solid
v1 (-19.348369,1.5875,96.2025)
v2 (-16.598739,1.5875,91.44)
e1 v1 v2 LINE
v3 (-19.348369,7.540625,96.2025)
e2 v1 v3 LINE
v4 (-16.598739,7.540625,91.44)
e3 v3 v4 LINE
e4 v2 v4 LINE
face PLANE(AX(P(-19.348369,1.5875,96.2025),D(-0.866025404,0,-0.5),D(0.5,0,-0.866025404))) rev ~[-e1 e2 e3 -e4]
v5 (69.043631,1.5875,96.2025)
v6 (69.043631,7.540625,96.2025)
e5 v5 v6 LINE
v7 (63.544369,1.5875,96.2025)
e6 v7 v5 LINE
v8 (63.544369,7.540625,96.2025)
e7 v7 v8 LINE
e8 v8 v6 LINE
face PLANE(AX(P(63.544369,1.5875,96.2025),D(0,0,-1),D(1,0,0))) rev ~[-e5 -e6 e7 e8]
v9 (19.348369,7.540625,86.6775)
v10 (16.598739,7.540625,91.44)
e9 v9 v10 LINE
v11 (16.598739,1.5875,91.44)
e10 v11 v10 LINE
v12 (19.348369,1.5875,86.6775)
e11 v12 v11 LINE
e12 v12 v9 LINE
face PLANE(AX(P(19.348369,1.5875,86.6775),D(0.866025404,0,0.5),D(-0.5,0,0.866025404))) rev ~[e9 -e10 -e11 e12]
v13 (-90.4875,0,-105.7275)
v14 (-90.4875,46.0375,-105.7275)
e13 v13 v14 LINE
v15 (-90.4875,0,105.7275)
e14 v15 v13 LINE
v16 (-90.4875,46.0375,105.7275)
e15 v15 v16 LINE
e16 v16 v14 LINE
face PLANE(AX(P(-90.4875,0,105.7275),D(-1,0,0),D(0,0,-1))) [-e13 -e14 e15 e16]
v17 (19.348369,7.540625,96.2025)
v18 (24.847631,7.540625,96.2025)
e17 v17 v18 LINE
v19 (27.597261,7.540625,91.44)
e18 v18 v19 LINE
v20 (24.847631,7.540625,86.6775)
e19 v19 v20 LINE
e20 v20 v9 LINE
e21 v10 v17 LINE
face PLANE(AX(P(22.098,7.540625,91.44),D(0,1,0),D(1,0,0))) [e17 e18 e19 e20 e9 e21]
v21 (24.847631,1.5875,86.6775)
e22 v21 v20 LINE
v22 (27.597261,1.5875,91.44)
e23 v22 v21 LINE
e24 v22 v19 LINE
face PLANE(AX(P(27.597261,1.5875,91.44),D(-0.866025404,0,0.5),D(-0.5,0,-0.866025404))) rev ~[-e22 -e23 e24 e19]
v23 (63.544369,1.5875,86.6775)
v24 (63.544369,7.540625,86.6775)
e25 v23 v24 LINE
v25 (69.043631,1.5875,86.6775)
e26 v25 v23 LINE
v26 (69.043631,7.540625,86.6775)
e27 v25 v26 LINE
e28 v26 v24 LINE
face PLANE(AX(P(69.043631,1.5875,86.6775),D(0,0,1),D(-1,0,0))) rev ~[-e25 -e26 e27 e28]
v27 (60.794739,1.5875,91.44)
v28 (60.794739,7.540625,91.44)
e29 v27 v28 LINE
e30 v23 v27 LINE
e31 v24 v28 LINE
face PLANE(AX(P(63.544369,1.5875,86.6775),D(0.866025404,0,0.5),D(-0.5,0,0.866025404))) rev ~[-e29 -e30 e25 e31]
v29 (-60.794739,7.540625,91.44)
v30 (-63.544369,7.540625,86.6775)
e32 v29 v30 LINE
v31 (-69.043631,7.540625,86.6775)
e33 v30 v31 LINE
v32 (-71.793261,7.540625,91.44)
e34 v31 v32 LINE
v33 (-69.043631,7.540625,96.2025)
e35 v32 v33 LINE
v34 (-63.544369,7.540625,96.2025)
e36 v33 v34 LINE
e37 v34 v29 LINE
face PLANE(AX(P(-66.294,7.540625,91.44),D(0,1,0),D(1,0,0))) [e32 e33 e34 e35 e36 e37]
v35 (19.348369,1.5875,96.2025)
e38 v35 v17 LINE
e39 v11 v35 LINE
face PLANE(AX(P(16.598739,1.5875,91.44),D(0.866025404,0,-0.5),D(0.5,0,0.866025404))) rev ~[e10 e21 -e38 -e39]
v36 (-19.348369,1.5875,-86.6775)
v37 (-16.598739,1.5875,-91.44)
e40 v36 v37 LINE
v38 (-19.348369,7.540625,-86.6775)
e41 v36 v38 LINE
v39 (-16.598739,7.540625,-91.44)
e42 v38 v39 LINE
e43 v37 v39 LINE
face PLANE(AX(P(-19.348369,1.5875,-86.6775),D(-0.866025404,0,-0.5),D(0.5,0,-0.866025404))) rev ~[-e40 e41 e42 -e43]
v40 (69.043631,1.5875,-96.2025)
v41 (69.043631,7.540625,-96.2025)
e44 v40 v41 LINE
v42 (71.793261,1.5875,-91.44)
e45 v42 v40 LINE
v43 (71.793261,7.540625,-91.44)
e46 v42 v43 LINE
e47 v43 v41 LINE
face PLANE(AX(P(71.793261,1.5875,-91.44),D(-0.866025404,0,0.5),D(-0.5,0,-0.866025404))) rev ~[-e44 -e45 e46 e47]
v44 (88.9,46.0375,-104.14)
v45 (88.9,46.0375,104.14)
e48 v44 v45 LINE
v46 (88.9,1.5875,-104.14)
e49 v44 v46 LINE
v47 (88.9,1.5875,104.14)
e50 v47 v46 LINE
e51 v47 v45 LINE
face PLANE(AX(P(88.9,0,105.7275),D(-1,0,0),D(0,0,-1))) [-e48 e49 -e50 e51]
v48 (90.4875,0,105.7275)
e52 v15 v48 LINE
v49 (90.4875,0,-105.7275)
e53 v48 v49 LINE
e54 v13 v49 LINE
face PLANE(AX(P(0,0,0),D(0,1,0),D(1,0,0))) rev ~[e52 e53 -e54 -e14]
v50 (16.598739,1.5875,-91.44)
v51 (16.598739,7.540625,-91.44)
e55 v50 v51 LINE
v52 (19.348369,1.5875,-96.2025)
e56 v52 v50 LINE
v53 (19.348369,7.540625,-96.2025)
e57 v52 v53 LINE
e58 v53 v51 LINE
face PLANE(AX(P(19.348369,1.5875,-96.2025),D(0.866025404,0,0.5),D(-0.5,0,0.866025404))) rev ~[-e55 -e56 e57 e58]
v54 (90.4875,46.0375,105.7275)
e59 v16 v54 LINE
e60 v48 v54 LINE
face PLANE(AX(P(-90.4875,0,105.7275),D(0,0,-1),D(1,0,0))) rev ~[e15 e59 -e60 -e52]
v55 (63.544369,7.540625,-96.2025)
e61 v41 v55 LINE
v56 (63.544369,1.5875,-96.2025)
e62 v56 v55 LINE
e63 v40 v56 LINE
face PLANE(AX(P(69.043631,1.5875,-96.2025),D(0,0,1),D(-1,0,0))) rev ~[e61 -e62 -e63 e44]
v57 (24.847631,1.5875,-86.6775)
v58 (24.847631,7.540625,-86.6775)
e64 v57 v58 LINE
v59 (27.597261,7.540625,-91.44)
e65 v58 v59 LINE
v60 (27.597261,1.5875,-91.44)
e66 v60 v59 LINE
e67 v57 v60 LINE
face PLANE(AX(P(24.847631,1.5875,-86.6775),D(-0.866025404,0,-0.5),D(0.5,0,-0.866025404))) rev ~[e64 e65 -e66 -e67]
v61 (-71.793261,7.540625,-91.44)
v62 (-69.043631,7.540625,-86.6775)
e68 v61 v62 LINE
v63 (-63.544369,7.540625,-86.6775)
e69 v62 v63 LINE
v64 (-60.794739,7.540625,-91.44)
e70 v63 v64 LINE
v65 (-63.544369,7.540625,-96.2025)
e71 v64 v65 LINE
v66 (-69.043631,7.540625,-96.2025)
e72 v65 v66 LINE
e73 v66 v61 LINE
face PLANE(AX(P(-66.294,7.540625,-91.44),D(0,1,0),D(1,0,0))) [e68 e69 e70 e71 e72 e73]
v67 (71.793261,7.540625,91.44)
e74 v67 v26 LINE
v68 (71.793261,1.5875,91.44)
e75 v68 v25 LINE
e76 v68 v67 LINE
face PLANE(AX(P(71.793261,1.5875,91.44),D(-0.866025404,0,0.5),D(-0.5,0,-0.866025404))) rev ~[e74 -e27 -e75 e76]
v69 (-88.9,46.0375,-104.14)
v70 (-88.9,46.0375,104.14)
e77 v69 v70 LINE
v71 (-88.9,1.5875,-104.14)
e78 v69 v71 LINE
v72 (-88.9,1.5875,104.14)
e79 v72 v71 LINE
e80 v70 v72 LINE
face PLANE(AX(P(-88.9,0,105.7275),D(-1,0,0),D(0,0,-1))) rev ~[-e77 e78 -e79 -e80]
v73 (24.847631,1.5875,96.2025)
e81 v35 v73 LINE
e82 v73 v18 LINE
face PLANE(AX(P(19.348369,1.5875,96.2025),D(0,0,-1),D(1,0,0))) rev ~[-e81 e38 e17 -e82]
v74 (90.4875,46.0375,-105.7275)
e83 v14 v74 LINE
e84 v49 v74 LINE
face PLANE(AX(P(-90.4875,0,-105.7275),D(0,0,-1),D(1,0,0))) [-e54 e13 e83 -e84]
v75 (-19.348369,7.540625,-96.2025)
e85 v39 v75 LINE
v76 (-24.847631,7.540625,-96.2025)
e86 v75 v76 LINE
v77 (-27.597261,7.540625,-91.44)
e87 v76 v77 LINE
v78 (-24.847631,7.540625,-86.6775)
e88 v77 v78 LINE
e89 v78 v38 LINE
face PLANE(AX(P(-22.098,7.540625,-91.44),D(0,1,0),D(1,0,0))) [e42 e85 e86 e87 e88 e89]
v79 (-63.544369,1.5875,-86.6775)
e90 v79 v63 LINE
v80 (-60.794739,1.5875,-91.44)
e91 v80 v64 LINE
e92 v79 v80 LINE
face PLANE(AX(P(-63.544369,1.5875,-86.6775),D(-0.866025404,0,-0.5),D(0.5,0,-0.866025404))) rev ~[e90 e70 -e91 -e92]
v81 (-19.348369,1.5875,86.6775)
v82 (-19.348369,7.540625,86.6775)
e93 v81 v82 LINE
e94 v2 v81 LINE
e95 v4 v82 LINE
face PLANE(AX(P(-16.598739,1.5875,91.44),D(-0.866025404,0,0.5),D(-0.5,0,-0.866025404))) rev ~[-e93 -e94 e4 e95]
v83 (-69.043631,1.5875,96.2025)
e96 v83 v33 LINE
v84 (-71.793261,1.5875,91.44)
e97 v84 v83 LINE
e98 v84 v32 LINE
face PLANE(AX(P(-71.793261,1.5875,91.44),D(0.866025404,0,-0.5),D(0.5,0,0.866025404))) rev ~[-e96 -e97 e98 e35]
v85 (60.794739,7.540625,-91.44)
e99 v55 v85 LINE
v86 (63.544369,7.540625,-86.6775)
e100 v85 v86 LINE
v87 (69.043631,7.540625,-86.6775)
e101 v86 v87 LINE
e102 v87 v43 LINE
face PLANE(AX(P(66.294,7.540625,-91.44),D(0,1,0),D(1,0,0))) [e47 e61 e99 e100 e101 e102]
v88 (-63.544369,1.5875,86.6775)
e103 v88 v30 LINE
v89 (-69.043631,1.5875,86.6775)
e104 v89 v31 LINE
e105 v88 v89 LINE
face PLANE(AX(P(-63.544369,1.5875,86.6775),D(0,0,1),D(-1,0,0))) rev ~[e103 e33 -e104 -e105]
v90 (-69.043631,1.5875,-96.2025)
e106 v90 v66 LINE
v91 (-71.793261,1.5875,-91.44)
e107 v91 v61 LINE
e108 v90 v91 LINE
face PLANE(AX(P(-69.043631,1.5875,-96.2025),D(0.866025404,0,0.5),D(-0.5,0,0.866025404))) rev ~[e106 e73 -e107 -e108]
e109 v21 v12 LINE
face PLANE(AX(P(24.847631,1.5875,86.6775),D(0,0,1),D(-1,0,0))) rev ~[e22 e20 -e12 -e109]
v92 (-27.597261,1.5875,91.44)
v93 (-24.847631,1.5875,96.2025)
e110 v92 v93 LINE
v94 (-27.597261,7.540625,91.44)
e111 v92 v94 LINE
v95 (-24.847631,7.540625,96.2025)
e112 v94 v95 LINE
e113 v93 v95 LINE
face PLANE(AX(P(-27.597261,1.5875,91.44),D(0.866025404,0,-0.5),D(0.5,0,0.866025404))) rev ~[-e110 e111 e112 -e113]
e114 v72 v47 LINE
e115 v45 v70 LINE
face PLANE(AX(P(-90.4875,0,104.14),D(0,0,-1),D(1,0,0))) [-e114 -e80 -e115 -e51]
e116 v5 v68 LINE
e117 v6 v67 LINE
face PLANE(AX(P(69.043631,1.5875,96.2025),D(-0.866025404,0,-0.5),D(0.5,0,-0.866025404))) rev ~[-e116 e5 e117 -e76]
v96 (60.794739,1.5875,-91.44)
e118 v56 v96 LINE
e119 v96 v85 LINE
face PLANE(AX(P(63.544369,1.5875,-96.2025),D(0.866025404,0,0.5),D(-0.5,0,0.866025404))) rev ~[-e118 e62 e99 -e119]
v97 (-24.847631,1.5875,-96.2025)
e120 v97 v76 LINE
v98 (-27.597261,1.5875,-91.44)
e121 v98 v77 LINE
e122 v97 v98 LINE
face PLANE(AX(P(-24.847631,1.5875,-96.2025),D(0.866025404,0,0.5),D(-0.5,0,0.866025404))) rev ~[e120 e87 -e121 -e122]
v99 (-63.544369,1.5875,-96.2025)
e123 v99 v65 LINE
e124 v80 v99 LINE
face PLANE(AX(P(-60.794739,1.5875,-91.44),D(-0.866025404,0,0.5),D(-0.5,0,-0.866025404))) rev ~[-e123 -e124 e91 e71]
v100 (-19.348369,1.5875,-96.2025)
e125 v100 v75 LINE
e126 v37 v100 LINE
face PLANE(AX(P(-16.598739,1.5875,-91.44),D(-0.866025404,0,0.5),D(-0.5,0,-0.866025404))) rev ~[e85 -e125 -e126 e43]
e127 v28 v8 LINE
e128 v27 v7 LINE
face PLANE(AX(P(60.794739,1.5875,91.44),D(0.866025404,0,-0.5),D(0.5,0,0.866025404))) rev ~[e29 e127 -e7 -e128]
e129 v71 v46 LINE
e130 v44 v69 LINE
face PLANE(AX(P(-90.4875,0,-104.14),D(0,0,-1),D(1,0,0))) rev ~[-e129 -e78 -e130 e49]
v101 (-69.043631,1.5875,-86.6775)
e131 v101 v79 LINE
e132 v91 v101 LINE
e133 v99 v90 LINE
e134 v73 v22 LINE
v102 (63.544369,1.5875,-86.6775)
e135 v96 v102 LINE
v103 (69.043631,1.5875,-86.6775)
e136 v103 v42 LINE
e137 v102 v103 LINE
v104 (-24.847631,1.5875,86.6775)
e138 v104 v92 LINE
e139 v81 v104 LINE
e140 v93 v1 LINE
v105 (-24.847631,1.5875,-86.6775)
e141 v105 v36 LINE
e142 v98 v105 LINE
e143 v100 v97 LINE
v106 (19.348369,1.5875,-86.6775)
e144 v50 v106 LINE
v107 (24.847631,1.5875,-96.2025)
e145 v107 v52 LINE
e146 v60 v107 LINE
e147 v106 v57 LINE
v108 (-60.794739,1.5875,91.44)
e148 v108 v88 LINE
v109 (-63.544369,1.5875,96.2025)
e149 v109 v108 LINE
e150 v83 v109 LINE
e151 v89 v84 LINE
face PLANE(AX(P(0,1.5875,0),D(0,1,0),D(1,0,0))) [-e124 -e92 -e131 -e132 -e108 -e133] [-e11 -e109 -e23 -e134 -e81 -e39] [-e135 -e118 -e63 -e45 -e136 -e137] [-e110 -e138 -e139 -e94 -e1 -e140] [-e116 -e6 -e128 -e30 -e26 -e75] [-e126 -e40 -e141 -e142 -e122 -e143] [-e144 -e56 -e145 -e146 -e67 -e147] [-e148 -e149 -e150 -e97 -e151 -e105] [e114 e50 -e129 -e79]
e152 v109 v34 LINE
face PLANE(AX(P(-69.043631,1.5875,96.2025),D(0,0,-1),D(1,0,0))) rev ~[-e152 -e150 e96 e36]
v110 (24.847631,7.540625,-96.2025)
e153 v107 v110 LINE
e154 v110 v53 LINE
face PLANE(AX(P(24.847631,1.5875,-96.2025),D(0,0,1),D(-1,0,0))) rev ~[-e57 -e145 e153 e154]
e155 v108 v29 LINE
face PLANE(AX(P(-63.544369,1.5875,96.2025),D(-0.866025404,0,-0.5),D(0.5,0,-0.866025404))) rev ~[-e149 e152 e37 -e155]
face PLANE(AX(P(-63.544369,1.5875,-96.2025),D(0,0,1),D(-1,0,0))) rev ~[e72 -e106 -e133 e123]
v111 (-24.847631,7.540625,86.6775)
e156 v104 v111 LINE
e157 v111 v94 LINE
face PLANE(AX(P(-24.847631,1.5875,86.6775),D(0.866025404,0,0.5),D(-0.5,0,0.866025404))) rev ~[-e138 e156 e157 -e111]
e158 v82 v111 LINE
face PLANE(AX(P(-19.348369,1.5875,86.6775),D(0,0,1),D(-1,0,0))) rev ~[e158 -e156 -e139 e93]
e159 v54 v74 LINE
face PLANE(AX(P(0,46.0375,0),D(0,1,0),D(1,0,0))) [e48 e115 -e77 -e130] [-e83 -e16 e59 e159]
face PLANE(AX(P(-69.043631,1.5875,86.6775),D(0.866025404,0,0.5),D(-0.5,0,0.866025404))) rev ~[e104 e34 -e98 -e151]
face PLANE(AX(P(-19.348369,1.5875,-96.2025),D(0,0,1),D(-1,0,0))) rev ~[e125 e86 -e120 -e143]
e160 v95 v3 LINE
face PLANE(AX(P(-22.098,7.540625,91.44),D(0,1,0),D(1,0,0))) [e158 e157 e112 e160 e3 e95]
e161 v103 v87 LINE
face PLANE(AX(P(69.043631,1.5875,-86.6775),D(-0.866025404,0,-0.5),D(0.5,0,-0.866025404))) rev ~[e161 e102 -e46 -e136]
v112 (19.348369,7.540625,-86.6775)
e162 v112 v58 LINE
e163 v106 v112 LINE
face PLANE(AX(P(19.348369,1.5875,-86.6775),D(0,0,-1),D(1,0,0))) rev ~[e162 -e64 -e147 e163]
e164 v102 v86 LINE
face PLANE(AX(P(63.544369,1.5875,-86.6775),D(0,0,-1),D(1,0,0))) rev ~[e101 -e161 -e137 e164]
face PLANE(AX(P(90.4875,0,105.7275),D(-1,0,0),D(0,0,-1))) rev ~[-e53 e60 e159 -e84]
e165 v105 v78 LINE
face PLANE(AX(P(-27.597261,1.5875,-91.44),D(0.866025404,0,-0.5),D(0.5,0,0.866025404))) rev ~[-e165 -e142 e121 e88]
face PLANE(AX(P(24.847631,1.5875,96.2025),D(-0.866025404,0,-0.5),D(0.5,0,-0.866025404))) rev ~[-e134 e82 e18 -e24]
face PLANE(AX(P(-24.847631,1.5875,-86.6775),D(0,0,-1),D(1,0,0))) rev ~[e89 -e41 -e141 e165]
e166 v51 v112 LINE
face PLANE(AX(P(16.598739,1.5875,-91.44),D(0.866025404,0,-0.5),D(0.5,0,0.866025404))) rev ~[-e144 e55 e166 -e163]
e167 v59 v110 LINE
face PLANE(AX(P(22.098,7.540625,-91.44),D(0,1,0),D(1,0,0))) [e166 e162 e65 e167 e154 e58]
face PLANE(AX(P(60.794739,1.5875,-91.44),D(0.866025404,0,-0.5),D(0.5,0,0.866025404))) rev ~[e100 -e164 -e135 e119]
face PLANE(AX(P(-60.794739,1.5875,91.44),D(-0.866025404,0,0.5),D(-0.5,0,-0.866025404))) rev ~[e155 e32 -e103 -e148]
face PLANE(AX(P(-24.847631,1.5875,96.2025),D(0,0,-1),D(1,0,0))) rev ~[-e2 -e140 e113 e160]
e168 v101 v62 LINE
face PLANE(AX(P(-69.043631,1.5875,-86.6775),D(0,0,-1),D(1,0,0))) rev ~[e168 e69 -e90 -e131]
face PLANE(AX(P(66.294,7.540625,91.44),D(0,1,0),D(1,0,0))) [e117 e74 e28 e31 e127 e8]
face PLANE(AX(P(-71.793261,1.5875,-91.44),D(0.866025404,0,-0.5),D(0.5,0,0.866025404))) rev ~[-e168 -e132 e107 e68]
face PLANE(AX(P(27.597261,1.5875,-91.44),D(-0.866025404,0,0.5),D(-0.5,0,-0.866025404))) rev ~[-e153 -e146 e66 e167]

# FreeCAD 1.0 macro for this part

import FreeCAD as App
import Part
import Sketcher
from FreeCAD import Vector
Q = App.Units.Quantity


def faces_at(feature, points):
    """Names of the faces that lie closest to the given points."""
    faces = feature.Shape.Faces
    near = lambda p: min(range(len(faces)), key=lambda i: faces[i].distToShape(Part.Vertex(*p))[0])
    return sorted({f"Face{near(p) + 1}" for p in points})


def add_polygon(sketch, points):
    """Adds a closed chain of lines whose ends are joined by coincident constraints."""
    first, n = sketch.GeometryCount, len(points)
    for a, b in zip(points, points[1:] + points[:1]):
        sketch.addGeometry(Part.LineSegment(App.Vector(*a, 0), App.Vector(*b, 0)), False)
    for i in range(n):
        sketch.addConstraint(Sketcher.Constraint("Coincident", first + i, 2, first + (i + 1) % n, 1))

doc = App.newDocument("Part")
params = doc.addObject("Spreadsheet::Sheet", "Params")
for row, (alias, value) in enumerate([
    ("sketch1_width", "7.125 in"),
    ("sketch1_height", "8.325 in"),
    ("pad1_length", "1.8125 in"),
    ("thickness_wall", "0.0625 in"),
    ("pad2_length", "0.234375 in"),
], start=1):
    params.set(f"A{row}", alias)
    params.set(f"B{row}", "=" + value)
    params.setAlias(f"B{row}", alias)

body = doc.addObject("PartDesign::Body", "Body")

# Sketch on XZ plane
sketch1 = body.newObject("Sketcher::SketchObject", "Sketch")
sketch1.AttachmentSupport = (doc.getObject("XZ_Plane"), [""])
sketch1.MapMode = "FlatFace"
add_polygon(sketch1, [(-90, -106), (-90, 106), (90, 106), (90, -106)])  # lines 0-3
sketch1.addConstraint(Sketcher.Constraint("Vertical", 0))
sketch1.addConstraint(Sketcher.Constraint("Horizontal", 1))
sketch1.addConstraint(Sketcher.Constraint("Vertical", 2))
sketch1.addConstraint(Sketcher.Constraint("Horizontal", 3))
sketch1.addConstraint(Sketcher.Constraint("Symmetric", 0, 2, 2, 2, -1, 1))
sketch1.addConstraint(Sketcher.Constraint("DistanceX", 1, 1, 1, 2, Q("7.125 in")))
sketch1.addConstraint(Sketcher.Constraint("DistanceY", 0, 1, 0, 2, Q("8.325 in")))
sketch1.setExpression("Constraints[9]", "Params.sketch1_width")
sketch1.setExpression("Constraints[10]", "Params.sketch1_height")
pad1 = body.newObject("PartDesign::Pad", "Pad")
pad1.Profile = sketch1
pad1.setExpression("Length", "Params.pad1_length")
pad1.Reversed = True
doc.recompute()

thickness = body.newObject("PartDesign::Thickness", "Thickness")
thickness.Base = (pad1, faces_at(pad1, [(0, 46.038, 0)]))
thickness.setExpression("Value", "Params.thickness_wall")
thickness.Reversed = True
thickness.Join = "Intersection"

# Sketch on XZ plane
sketch2 = body.newObject("Sketcher::SketchObject", "Sketch001")
sketch2.AttachmentSupport = (doc.getObject("XZ_Plane"), [""])
sketch2.MapMode = "FlatFace"
sketch2.AttachmentOffset = App.Placement(Vector(0, 0, -0.0625 * 25.4), App.Rotation())
add_polygon(sketch2, [(-28, 91), (-25, 96), (-19, 96), (-17, 91), (-19, 87), (-25, 87)])  # lines 0-5
add_polygon(sketch2, [(-72, 91), (-69, 96), (-64, 96), (-61, 91), (-64, 87), (-69, 87)])  # lines 6-11
add_polygon(sketch2, [(17, 91), (19, 96), (25, 96), (28, 91), (25, 87), (19, 87)])  # lines 12-17
add_polygon(sketch2, [(61, 91), (64, 96), (69, 96), (72, 91), (69, 87), (64, 87)])  # lines 18-23
add_polygon(sketch2, [(-28, -91), (-25, -87), (-19, -87), (-17, -91), (-19, -96), (-25, -96)])  # lines 24-29
add_polygon(sketch2, [(17, -91), (19, -87), (25, -87), (28, -91), (25, -96), (19, -96)])  # lines 30-35
add_polygon(sketch2, [(61, -91), (64, -87), (69, -87), (72, -91), (69, -96), (64, -96)])  # lines 36-41
add_polygon(sketch2, [(-72, -91), (-69, -87), (-64, -87), (-61, -91), (-64, -96), (-69, -96)])  # lines 42-47
sketch2.addConstraint(Sketcher.Constraint("Horizontal", 1))
sketch2.addConstraint(Sketcher.Constraint("Horizontal", 4))
sketch2.addConstraint(Sketcher.Constraint("Horizontal", 7))
sketch2.addConstraint(Sketcher.Constraint("Horizontal", 10))
sketch2.addConstraint(Sketcher.Constraint("Horizontal", 13))
sketch2.addConstraint(Sketcher.Constraint("Horizontal", 16))
sketch2.addConstraint(Sketcher.Constraint("Horizontal", 19))
sketch2.addConstraint(Sketcher.Constraint("Horizontal", 22))
sketch2.addConstraint(Sketcher.Constraint("Horizontal", 25))
sketch2.addConstraint(Sketcher.Constraint("Horizontal", 28))
sketch2.addConstraint(Sketcher.Constraint("Horizontal", 31))
sketch2.addConstraint(Sketcher.Constraint("Horizontal", 34))
sketch2.addConstraint(Sketcher.Constraint("Horizontal", 37))
sketch2.addConstraint(Sketcher.Constraint("Horizontal", 40))
sketch2.addConstraint(Sketcher.Constraint("Horizontal", 43))
sketch2.addConstraint(Sketcher.Constraint("Horizontal", 46))
sketch2.addConstraint(Sketcher.Constraint("Symmetric", 15, 2, 24, 2, -1, 1))
sketch2.addConstraint(Sketcher.Constraint("Symmetric", 17, 2, 26, 2, -1, 1))
sketch2.addConstraint(Sketcher.Constraint("Symmetric", 12, 2, 27, 2, -1, 1))
sketch2.addConstraint(Sketcher.Constraint("Symmetric", 14, 2, 29, 2, -1, 1))
sketch2.addConstraint(Sketcher.Constraint("Symmetric", 3, 2, 30, 2, -1, 1))
sketch2.addConstraint(Sketcher.Constraint("Symmetric", 5, 2, 32, 2, -1, 1))
sketch2.addConstraint(Sketcher.Constraint("Symmetric", 0, 2, 33, 2, -1, 1))
sketch2.addConstraint(Sketcher.Constraint("Symmetric", 2, 2, 35, 2, -1, 1))
sketch2.addConstraint(Sketcher.Constraint("Symmetric", 9, 2, 36, 2, -1, 1))
sketch2.addConstraint(Sketcher.Constraint("Symmetric", 11, 2, 38, 2, -1, 1))
sketch2.addConstraint(Sketcher.Constraint("Symmetric", 6, 2, 39, 2, -1, 1))
sketch2.addConstraint(Sketcher.Constraint("Symmetric", 8, 2, 41, 2, -1, 1))
sketch2.addConstraint(Sketcher.Constraint("Symmetric", 21, 2, 42, 2, -1, 1))
sketch2.addConstraint(Sketcher.Constraint("Symmetric", 23, 2, 44, 2, -1, 1))
sketch2.addConstraint(Sketcher.Constraint("Symmetric", 18, 2, 45, 2, -1, 1))
sketch2.addConstraint(Sketcher.Constraint("Symmetric", 20, 2, 47, 2, -1, 1))
sketch2.addConstraint(Sketcher.Constraint("Symmetric", 1, 2, 12, 2, -2))
sketch2.addConstraint(Sketcher.Constraint("Symmetric", 5, 2, 14, 2, -2))
sketch2.addConstraint(Sketcher.Constraint("Symmetric", 4, 2, 15, 2, -2))
sketch2.addConstraint(Sketcher.Constraint("Symmetric", 2, 2, 17, 2, -2))
sketch2.addConstraint(Sketcher.Constraint("Symmetric", 7, 2, 18, 2, -2))
sketch2.addConstraint(Sketcher.Constraint("Symmetric", 11, 2, 20, 2, -2))
sketch2.addConstraint(Sketcher.Constraint("Symmetric", 10, 2, 21, 2, -2))
sketch2.addConstraint(Sketcher.Constraint("Symmetric", 8, 2, 23, 2, -2))
sketch2.addConstraint(Sketcher.Constraint("Parallel", 0, 3))
sketch2.addConstraint(Sketcher.Constraint("Parallel", 2, 5))
sketch2.addConstraint(Sketcher.Constraint("Parallel", 3, 6))
sketch2.addConstraint(Sketcher.Constraint("Parallel", 5, 8))
sketch2.addConstraint(Sketcher.Constraint("Parallel", 6, 9))
sketch2.addConstraint(Sketcher.Constraint("Parallel", 8, 11))
sketch2.addConstraint(Sketcher.Constraint("Parallel", 9, 12))
sketch2.addConstraint(Sketcher.Constraint("Parallel", 11, 14))
sketch2.addConstraint(Sketcher.Constraint("Parallel", 14, 17))
sketch2.addConstraint(Sketcher.Constraint("Parallel", 17, 20))
sketch2.addConstraint(Sketcher.Constraint("Parallel", 20, 23))
sketch2.addConstraint(Sketcher.Constraint("Parallel", 23, 26))
sketch2.addConstraint(Sketcher.Constraint("Parallel", 26, 29))
sketch2.addConstraint(Sketcher.Constraint("Parallel", 29, 32))
sketch2.addConstraint(Sketcher.Constraint("Parallel", 32, 35))
sketch2.addConstraint(Sketcher.Constraint("Parallel", 35, 38))
sketch2.addConstraint(Sketcher.Constraint("Parallel", 38, 41))
sketch2.addConstraint(Sketcher.Constraint("Parallel", 41, 44))
sketch2.addConstraint(Sketcher.Constraint("Parallel", 44, 47))
sketch2.addConstraint(Sketcher.Constraint("Horizontal", 2, 2, 5, 2))
sketch2.addConstraint(Sketcher.Constraint("Horizontal", 1, 2, 6, 2))
sketch2.addConstraint(Sketcher.Constraint("Horizontal", 5, 2, 8, 2))
sketch2.addConstraint(Sketcher.Constraint("Horizontal", 4, 2, 9, 2))
sketch2.addConstraint(Sketcher.Constraint("Horizontal", 8, 2, 11, 2))
sketch2.addConstraint(Sketcher.Constraint("Vertical", 1, 2, 3, 2))
sketch2.addConstraint(Sketcher.Constraint("Equal", 4, 7))
sketch2.addConstraint(Sketcher.Constraint("Angle", 0, Q("60 deg")))
sketch2.addConstraint(Sketcher.Constraint("DistanceY", -1, 1, 2, 2, Q("3.6 in")))
sketch2.addConstraint(Sketcher.Constraint("DistanceX", 6, 2, 0, 2, Q("1.74 in")))
sketch2.addConstraint(Sketcher.Constraint("DistanceX", 0, 2, 12, 2, Q("1.74 in")))
sketch2.addConstraint(Sketcher.Constraint("DistanceY", 2, 2, 1, 2, Q("0.1875 in")))
sketch2.addConstraint(Sketcher.Constraint("DistanceX", 1, 1, 1, 2, 5.499261))
pad2 = body.newObject("PartDesign::Pad", "Pad001")
pad2.Profile = sketch2
pad2.setExpression("Length", "Params.pad2_length")
pad2.Reversed = True

doc.recompute()
